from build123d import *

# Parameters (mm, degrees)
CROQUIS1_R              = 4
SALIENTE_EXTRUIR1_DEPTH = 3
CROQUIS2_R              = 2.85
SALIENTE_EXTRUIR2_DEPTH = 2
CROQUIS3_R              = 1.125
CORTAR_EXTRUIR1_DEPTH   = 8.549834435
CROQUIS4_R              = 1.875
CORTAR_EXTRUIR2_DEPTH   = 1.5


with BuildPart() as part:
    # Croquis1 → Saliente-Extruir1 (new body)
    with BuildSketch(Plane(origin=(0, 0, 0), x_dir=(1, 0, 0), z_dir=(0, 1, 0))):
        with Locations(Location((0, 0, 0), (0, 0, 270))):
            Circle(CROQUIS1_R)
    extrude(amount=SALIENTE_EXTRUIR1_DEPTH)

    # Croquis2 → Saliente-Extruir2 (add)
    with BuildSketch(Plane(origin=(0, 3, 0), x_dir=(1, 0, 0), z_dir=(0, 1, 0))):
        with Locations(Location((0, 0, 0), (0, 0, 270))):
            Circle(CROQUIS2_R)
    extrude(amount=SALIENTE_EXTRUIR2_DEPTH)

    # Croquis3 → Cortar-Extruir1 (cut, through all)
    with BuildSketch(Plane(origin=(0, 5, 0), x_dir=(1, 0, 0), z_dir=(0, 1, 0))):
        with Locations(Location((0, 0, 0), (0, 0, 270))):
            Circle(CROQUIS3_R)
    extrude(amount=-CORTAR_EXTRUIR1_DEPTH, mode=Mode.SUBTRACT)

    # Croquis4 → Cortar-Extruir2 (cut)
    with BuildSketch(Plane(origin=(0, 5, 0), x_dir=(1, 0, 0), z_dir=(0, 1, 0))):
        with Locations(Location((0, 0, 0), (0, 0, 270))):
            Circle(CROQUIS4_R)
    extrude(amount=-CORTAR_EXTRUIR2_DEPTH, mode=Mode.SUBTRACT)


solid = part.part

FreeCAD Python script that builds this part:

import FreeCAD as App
import Part
import Sketcher
Q = App.Units.Quantity

doc = App.newDocument("Part")
body = doc.addObject("PartDesign::Body", "Body")

sketch1 = body.newObject("Sketcher::SketchObject", "Sketch")
sketch1.AttachmentSupport = (doc.getObject("XZ_Plane"), [""])
sketch1.MapMode = "FlatFace"
sketch1.addGeometry(Part.Circle(App.Vector(0, 0, 0), App.Vector(0, 0, 1), 4), False)
sketch1.addConstraint(Sketcher.Constraint("Coincident", 0, 3, -1, 1))
sketch1.addConstraint(Sketcher.Constraint("Diameter", 0, Q("8 mm")))
pad1 = body.newObject("PartDesign::Pad", "Pad")
pad1.Profile = sketch1
pad1.Length = 3
pad1.Reversed = True

sketch2 = body.newObject("Sketcher::SketchObject", "Sketch001")
sketch2.AttachmentSupport = (doc.getObject("XZ_Plane"), [""])
sketch2.MapMode = "FlatFace"
sketch2.AttachmentOffset = App.Placement(App.Vector(0, 0, -3), App.Rotation())
sketch2.addGeometry(Part.Circle(App.Vector(0, 0, 0), App.Vector(0, 0, 1), 2.9), False)
sketch2.addConstraint(Sketcher.Constraint("Coincident", 0, 3, -1, 1))
sketch2.addConstraint(Sketcher.Constraint("Diameter", 0, Q("5.7 mm")))
pad2 = body.newObject("PartDesign::Pad", "Pad001")
pad2.Profile = sketch2
pad2.Length = 2
pad2.Reversed = True

sketch3 = body.newObject("Sketcher::SketchObject", "Sketch002")
sketch3.AttachmentSupport = (doc.getObject("XZ_Plane"), [""])
sketch3.MapMode = "FlatFace"
sketch3.AttachmentOffset = App.Placement(App.Vector(0, 0, -5), App.Rotation())
sketch3.addGeometry(Part.Circle(App.Vector(0, 0, 0), App.Vector(0, 0, 1), 1.1), False)
sketch3.addConstraint(Sketcher.Constraint("Coincident", 0, 3, -1, 1))
sketch3.addConstraint(Sketcher.Constraint("Diameter", 0, Q("2.25 mm")))
pocket1 = body.newObject("PartDesign::Pocket", "Pocket")
pocket1.Profile = sketch3
pocket1.Type = "ThroughAll"
pocket1.Reversed = True

sketch4 = body.newObject("Sketcher::SketchObject", "Sketch003")
sketch4.AttachmentSupport = (doc.getObject("XZ_Plane"), [""])
sketch4.MapMode = "FlatFace"
sketch4.AttachmentOffset = App.Placement(App.Vector(0, 0, -5), App.Rotation())
sketch4.addGeometry(Part.Circle(App.Vector(0, 0, 0), App.Vector(0, 0, 1), 1.9), False)
sketch4.addConstraint(Sketcher.Constraint("Coincident", 0, 3, -1, 1))
sketch4.addConstraint(Sketcher.Constraint("Diameter", 0, Q("3.75 mm")))
pocket2 = body.newObject("PartDesign::Pocket", "Pocket001")
pocket2.Profile = sketch4
pocket2.Length = 1.5
pocket2.Reversed = True

doc.recompute()
